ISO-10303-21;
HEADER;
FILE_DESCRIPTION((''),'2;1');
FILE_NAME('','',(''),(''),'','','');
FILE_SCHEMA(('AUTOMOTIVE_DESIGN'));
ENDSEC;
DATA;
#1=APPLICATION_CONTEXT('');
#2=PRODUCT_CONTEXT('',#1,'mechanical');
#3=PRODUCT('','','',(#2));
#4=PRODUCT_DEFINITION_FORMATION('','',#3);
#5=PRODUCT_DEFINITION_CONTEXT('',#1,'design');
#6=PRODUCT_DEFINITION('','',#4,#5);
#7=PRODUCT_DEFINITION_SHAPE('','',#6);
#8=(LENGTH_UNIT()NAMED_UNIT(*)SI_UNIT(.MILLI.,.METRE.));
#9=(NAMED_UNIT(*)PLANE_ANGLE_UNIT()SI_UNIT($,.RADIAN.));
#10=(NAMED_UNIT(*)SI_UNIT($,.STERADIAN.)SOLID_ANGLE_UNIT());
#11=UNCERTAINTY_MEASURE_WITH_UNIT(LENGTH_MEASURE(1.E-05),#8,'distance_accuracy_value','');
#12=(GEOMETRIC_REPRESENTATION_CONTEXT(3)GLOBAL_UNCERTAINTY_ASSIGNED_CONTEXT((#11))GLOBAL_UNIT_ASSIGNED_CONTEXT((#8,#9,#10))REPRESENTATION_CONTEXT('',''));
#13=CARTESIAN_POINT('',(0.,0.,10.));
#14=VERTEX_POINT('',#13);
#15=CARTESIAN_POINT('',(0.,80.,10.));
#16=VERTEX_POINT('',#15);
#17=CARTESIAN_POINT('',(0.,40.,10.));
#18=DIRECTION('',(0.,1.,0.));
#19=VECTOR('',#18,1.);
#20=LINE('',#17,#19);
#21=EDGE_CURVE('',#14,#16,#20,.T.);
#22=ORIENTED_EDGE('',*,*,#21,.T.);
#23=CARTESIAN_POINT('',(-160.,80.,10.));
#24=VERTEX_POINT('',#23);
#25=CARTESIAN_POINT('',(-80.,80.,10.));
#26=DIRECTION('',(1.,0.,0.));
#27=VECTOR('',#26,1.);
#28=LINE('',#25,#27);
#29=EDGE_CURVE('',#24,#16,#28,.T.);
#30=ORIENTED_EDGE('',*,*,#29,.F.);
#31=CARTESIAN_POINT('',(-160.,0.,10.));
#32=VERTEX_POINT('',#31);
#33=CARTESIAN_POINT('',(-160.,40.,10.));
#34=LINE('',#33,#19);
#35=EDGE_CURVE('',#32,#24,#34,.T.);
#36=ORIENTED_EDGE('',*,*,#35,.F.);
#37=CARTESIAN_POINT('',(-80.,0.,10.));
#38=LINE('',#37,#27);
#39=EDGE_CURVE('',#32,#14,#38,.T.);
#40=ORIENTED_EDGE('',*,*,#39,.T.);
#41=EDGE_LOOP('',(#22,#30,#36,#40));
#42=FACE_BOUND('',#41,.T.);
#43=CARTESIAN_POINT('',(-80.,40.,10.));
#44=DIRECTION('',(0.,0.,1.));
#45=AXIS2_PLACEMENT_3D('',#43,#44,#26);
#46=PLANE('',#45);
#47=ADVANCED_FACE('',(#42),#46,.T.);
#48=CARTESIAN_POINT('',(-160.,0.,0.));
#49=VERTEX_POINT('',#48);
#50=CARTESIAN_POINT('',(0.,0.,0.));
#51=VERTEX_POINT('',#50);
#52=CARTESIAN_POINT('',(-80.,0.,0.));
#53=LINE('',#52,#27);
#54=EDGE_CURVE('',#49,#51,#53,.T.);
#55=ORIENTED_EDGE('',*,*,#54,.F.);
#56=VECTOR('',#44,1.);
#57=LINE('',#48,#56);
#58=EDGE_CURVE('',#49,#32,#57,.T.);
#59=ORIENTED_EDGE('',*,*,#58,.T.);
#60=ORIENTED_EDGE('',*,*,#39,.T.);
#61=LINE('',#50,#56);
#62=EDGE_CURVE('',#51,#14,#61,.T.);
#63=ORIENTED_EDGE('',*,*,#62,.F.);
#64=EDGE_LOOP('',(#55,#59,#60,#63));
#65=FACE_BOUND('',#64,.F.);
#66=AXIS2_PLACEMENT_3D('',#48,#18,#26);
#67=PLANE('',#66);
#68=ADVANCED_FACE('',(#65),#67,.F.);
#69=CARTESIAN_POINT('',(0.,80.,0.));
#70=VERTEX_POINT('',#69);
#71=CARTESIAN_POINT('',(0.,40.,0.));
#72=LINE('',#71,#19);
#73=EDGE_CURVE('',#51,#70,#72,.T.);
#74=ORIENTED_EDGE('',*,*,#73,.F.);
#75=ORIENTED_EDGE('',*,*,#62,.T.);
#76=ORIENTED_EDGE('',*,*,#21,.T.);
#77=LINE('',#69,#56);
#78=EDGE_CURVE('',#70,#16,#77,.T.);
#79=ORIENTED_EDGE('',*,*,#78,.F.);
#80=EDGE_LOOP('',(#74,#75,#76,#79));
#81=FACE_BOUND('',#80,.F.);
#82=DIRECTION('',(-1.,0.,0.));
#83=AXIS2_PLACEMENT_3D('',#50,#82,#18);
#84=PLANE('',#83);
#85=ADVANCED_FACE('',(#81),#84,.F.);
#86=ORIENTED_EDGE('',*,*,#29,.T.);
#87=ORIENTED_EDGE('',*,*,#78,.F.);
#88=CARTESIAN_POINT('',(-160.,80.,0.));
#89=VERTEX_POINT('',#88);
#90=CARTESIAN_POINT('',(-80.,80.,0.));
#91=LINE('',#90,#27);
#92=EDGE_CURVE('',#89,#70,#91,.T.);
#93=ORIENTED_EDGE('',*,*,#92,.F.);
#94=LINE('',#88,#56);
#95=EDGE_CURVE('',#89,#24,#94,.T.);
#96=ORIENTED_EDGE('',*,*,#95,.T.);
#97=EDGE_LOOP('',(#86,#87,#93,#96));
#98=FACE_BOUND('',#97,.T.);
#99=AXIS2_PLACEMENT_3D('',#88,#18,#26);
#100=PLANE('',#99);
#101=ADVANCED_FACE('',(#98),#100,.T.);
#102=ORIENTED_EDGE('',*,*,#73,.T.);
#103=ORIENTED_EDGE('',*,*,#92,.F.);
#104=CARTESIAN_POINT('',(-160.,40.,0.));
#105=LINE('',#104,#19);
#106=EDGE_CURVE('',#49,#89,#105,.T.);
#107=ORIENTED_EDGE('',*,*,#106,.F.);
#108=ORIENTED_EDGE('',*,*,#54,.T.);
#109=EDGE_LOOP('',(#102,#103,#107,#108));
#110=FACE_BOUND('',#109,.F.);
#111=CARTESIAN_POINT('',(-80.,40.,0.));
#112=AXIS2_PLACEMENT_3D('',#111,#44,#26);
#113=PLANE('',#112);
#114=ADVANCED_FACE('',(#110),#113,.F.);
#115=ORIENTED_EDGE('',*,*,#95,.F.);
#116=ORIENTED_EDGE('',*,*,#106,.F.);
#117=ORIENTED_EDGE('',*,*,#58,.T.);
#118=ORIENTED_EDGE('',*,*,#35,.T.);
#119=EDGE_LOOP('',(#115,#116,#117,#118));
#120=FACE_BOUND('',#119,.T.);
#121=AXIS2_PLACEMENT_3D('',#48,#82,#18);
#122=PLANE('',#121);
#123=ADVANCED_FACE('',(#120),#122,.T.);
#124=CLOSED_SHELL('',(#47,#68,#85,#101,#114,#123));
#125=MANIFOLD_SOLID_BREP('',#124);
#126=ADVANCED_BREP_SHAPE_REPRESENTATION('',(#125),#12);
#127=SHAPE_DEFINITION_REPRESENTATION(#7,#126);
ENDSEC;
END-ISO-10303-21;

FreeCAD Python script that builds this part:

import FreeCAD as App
import Part
import Sketcher

V = App.Vector
Q = App.Units.Quantity

doc = App.newDocument("Part")
body = doc.addObject("PartDesign::Body", "Body")

sketch1 = doc.addObject("Sketcher::SketchObject", "Sketch")
body.addObject(sketch1)
sketch1.AttachmentSupport = (doc.XY_Plane, [""])
sketch1.MapMode = "FlatFace"
sketch1.addGeometry([
    Part.LineSegment(V(-160, 80, 0), V(-160, 0, 0)),
    Part.LineSegment(V(-160, 0, 0), V(0, 0, 0)),
    Part.LineSegment(V(0, 0, 0), V(0, 80, 0)),
    Part.LineSegment(V(0, 80, 0), V(-160, 80, 0)),
], False)
sketch1.addConstraint([
    Sketcher.Constraint("Coincident", 0, 2, 1, 1),
    Sketcher.Constraint("Coincident", 1, 2, 2, 1),
    Sketcher.Constraint("Coincident", 2, 2, 3, 1),
    Sketcher.Constraint("Coincident", 3, 2, 0, 1),
    Sketcher.Constraint("Vertical", 0),
    Sketcher.Constraint("Horizontal", 1),
    Sketcher.Constraint("Vertical", 2),
    Sketcher.Constraint("Horizontal", 3),
    Sketcher.Constraint("Coincident", 1, 2, -1, 1),
    Sketcher.Constraint("DistanceX", 1, 1, 1, 2, Q("160 mm")),
    Sketcher.Constraint("DistanceY", 0, 2, 0, 1, Q("80 mm")),
])
pad1 = doc.addObject("PartDesign::Pad", "Pad")
body.addObject(pad1)
pad1.Profile = sketch1
pad1.Length = 10

doc.recompute()
